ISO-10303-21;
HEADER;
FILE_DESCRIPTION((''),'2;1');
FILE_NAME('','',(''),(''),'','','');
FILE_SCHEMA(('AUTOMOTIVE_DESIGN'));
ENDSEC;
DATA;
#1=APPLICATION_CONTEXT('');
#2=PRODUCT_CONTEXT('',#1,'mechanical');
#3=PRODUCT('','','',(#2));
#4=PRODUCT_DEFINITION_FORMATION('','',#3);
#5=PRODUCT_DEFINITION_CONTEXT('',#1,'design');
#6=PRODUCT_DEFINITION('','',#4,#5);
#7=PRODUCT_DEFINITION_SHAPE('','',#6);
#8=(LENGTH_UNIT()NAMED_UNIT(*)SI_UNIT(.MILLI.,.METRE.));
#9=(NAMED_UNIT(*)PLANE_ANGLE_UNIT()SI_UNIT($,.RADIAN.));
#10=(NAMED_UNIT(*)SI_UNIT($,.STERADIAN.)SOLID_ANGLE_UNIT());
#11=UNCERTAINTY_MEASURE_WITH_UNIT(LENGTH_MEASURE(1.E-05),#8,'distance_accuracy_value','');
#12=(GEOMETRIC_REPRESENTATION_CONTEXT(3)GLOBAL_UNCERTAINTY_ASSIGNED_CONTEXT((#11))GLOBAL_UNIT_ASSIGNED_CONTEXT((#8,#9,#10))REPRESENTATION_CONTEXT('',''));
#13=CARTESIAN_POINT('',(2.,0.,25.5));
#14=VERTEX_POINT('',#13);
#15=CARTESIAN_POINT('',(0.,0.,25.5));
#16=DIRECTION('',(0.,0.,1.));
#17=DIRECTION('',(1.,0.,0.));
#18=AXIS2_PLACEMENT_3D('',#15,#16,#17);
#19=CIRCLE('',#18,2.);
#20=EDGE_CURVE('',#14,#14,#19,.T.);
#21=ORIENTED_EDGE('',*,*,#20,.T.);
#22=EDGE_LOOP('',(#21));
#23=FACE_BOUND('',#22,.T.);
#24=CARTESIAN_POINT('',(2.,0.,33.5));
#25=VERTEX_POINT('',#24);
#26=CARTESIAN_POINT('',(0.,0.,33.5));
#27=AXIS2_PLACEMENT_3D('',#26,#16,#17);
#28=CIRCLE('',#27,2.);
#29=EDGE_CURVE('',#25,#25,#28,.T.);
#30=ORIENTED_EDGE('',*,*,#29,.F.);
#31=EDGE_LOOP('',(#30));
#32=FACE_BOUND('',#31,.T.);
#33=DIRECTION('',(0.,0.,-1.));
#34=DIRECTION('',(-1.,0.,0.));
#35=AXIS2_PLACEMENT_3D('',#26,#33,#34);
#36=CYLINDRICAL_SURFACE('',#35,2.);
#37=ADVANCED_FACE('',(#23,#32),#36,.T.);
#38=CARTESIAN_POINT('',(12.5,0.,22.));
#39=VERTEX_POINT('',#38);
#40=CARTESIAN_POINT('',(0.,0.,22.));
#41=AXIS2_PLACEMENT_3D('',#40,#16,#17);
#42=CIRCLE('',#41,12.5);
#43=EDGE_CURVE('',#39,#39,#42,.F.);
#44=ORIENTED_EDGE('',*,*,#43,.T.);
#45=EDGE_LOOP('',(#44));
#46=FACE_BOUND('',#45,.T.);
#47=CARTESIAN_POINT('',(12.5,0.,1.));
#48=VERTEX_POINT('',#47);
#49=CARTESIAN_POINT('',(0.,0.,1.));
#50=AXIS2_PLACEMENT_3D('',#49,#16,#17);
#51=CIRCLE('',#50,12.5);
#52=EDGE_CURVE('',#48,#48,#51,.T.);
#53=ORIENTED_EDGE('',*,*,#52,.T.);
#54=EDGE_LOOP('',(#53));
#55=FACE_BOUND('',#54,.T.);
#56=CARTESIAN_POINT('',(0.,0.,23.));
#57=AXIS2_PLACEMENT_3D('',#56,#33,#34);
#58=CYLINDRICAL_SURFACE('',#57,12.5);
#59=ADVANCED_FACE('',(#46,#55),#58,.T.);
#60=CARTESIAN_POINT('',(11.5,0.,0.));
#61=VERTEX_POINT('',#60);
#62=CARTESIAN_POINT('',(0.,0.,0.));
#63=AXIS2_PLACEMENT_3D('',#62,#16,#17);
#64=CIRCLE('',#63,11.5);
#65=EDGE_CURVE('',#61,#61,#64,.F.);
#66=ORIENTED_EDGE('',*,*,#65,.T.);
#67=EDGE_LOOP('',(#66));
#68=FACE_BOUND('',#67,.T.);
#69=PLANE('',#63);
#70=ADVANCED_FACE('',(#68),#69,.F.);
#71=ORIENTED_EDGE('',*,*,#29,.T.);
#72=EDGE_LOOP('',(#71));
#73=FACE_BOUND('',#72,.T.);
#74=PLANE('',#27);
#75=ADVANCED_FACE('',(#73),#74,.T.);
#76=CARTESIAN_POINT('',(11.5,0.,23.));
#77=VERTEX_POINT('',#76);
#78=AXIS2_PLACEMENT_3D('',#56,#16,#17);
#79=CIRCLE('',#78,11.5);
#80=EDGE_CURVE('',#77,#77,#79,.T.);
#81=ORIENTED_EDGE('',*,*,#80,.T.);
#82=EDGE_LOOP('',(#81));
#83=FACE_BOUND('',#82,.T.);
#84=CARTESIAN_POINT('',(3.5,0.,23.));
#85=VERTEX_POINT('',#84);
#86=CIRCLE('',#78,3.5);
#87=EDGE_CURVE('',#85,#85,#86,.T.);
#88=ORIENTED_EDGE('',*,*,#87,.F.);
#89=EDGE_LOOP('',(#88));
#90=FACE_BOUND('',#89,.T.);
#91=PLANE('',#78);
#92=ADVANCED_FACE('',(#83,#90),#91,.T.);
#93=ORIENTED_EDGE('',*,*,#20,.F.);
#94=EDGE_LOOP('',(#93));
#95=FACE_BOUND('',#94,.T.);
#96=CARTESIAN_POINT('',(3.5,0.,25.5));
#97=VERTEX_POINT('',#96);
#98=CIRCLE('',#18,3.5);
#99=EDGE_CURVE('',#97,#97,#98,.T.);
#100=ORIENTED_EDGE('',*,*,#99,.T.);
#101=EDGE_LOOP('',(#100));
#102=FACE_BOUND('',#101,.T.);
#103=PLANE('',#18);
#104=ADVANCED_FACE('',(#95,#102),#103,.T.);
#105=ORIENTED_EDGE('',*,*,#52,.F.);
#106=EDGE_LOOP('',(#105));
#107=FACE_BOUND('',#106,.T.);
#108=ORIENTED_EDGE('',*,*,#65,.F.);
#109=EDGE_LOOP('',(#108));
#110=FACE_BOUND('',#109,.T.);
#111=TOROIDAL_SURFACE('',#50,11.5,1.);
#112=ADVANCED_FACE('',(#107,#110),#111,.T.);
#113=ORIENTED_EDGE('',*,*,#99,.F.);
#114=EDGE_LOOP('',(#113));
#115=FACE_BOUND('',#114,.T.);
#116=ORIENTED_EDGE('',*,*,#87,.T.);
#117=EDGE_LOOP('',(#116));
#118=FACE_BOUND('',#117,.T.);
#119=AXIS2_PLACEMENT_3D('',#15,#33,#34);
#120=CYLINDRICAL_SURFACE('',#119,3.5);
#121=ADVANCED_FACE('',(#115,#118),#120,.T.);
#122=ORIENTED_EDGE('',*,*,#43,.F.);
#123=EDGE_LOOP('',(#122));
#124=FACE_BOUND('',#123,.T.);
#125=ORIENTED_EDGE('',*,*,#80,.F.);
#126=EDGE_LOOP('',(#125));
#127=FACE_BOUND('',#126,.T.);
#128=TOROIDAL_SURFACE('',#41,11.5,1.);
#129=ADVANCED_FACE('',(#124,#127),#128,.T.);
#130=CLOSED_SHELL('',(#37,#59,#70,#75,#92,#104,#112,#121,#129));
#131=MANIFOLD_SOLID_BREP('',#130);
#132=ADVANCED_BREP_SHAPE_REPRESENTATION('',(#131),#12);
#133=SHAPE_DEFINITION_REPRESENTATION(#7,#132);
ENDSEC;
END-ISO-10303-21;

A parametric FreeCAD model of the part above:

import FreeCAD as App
import Part
import Sketcher

V = App.Vector


def edges_at(feature, points):
    """Names of the edges that pass closest to the given points."""
    edges = feature.Shape.Edges
    near = lambda p: min(range(len(edges)), key=lambda i: edges[i].distToShape(Part.Vertex(*p))[0])
    return sorted({f"Edge{near(p) + 1}" for p in points})

doc = App.newDocument("Part")
body = doc.addObject("PartDesign::Body", "Body")

# Sketch on XY plane
sketch1 = body.newObject("Sketcher::SketchObject", "Sketch")
sketch1.AttachmentSupport = (doc.getObject("XY_Plane"), [""])
sketch1.MapMode = "FlatFace"
sketch1.addGeometry(Part.Circle(V(0, 0, 0), V(0, 0, 1), 12), False)
sketch1.addConstraint(Sketcher.Constraint("Coincident", 0, 3, -1, 1))
sketch1.addConstraint(Sketcher.Constraint("Diameter", 0, 25.0))
pad1 = body.newObject("PartDesign::Pad", "Pad")
pad1.Profile = sketch1
pad1.Length = 23

# Sketch on XY plane
sketch2 = body.newObject("Sketcher::SketchObject", "Sketch001")
sketch2.AttachmentSupport = (doc.getObject("XY_Plane"), [""])
sketch2.MapMode = "FlatFace"
sketch2.AttachmentOffset = App.Placement(V(0, 0, 23), App.Rotation())
sketch2.addGeometry(Part.Circle(V(0, 0, 0), V(0, 0, 1), 3.5), False)
sketch2.addConstraint(Sketcher.Constraint("Coincident", 0, 3, -1, 1))
sketch2.addConstraint(Sketcher.Constraint("Diameter", 0, 7.0))
pad2 = body.newObject("PartDesign::Pad", "Pad001")
pad2.Profile = sketch2
pad2.Length = 2.5
doc.recompute()

fillet = body.newObject("PartDesign::Fillet", "Fillet")
fillet.Base = (pad2, edges_at(pad2, [(-12.5, 0, 0), (-12.5, 0, 23)]))
fillet.Radius = 1

# Sketch on XY plane
sketch3 = body.newObject("Sketcher::SketchObject", "Sketch002")
sketch3.AttachmentSupport = (doc.getObject("XY_Plane"), [""])
sketch3.MapMode = "FlatFace"
sketch3.AttachmentOffset = App.Placement(V(0, 0, 25.5), App.Rotation())
sketch3.addGeometry(Part.Circle(V(0, 0, 0), V(0, 0, 1), 2), False)
sketch3.addConstraint(Sketcher.Constraint("Coincident", 0, 3, -1, 1))
sketch3.addConstraint(Sketcher.Constraint("Diameter", 0, 4.0))
pad3 = body.newObject("PartDesign::Pad", "Pad002")
pad3.Profile = sketch3
pad3.Length = 8

doc.recompute()
